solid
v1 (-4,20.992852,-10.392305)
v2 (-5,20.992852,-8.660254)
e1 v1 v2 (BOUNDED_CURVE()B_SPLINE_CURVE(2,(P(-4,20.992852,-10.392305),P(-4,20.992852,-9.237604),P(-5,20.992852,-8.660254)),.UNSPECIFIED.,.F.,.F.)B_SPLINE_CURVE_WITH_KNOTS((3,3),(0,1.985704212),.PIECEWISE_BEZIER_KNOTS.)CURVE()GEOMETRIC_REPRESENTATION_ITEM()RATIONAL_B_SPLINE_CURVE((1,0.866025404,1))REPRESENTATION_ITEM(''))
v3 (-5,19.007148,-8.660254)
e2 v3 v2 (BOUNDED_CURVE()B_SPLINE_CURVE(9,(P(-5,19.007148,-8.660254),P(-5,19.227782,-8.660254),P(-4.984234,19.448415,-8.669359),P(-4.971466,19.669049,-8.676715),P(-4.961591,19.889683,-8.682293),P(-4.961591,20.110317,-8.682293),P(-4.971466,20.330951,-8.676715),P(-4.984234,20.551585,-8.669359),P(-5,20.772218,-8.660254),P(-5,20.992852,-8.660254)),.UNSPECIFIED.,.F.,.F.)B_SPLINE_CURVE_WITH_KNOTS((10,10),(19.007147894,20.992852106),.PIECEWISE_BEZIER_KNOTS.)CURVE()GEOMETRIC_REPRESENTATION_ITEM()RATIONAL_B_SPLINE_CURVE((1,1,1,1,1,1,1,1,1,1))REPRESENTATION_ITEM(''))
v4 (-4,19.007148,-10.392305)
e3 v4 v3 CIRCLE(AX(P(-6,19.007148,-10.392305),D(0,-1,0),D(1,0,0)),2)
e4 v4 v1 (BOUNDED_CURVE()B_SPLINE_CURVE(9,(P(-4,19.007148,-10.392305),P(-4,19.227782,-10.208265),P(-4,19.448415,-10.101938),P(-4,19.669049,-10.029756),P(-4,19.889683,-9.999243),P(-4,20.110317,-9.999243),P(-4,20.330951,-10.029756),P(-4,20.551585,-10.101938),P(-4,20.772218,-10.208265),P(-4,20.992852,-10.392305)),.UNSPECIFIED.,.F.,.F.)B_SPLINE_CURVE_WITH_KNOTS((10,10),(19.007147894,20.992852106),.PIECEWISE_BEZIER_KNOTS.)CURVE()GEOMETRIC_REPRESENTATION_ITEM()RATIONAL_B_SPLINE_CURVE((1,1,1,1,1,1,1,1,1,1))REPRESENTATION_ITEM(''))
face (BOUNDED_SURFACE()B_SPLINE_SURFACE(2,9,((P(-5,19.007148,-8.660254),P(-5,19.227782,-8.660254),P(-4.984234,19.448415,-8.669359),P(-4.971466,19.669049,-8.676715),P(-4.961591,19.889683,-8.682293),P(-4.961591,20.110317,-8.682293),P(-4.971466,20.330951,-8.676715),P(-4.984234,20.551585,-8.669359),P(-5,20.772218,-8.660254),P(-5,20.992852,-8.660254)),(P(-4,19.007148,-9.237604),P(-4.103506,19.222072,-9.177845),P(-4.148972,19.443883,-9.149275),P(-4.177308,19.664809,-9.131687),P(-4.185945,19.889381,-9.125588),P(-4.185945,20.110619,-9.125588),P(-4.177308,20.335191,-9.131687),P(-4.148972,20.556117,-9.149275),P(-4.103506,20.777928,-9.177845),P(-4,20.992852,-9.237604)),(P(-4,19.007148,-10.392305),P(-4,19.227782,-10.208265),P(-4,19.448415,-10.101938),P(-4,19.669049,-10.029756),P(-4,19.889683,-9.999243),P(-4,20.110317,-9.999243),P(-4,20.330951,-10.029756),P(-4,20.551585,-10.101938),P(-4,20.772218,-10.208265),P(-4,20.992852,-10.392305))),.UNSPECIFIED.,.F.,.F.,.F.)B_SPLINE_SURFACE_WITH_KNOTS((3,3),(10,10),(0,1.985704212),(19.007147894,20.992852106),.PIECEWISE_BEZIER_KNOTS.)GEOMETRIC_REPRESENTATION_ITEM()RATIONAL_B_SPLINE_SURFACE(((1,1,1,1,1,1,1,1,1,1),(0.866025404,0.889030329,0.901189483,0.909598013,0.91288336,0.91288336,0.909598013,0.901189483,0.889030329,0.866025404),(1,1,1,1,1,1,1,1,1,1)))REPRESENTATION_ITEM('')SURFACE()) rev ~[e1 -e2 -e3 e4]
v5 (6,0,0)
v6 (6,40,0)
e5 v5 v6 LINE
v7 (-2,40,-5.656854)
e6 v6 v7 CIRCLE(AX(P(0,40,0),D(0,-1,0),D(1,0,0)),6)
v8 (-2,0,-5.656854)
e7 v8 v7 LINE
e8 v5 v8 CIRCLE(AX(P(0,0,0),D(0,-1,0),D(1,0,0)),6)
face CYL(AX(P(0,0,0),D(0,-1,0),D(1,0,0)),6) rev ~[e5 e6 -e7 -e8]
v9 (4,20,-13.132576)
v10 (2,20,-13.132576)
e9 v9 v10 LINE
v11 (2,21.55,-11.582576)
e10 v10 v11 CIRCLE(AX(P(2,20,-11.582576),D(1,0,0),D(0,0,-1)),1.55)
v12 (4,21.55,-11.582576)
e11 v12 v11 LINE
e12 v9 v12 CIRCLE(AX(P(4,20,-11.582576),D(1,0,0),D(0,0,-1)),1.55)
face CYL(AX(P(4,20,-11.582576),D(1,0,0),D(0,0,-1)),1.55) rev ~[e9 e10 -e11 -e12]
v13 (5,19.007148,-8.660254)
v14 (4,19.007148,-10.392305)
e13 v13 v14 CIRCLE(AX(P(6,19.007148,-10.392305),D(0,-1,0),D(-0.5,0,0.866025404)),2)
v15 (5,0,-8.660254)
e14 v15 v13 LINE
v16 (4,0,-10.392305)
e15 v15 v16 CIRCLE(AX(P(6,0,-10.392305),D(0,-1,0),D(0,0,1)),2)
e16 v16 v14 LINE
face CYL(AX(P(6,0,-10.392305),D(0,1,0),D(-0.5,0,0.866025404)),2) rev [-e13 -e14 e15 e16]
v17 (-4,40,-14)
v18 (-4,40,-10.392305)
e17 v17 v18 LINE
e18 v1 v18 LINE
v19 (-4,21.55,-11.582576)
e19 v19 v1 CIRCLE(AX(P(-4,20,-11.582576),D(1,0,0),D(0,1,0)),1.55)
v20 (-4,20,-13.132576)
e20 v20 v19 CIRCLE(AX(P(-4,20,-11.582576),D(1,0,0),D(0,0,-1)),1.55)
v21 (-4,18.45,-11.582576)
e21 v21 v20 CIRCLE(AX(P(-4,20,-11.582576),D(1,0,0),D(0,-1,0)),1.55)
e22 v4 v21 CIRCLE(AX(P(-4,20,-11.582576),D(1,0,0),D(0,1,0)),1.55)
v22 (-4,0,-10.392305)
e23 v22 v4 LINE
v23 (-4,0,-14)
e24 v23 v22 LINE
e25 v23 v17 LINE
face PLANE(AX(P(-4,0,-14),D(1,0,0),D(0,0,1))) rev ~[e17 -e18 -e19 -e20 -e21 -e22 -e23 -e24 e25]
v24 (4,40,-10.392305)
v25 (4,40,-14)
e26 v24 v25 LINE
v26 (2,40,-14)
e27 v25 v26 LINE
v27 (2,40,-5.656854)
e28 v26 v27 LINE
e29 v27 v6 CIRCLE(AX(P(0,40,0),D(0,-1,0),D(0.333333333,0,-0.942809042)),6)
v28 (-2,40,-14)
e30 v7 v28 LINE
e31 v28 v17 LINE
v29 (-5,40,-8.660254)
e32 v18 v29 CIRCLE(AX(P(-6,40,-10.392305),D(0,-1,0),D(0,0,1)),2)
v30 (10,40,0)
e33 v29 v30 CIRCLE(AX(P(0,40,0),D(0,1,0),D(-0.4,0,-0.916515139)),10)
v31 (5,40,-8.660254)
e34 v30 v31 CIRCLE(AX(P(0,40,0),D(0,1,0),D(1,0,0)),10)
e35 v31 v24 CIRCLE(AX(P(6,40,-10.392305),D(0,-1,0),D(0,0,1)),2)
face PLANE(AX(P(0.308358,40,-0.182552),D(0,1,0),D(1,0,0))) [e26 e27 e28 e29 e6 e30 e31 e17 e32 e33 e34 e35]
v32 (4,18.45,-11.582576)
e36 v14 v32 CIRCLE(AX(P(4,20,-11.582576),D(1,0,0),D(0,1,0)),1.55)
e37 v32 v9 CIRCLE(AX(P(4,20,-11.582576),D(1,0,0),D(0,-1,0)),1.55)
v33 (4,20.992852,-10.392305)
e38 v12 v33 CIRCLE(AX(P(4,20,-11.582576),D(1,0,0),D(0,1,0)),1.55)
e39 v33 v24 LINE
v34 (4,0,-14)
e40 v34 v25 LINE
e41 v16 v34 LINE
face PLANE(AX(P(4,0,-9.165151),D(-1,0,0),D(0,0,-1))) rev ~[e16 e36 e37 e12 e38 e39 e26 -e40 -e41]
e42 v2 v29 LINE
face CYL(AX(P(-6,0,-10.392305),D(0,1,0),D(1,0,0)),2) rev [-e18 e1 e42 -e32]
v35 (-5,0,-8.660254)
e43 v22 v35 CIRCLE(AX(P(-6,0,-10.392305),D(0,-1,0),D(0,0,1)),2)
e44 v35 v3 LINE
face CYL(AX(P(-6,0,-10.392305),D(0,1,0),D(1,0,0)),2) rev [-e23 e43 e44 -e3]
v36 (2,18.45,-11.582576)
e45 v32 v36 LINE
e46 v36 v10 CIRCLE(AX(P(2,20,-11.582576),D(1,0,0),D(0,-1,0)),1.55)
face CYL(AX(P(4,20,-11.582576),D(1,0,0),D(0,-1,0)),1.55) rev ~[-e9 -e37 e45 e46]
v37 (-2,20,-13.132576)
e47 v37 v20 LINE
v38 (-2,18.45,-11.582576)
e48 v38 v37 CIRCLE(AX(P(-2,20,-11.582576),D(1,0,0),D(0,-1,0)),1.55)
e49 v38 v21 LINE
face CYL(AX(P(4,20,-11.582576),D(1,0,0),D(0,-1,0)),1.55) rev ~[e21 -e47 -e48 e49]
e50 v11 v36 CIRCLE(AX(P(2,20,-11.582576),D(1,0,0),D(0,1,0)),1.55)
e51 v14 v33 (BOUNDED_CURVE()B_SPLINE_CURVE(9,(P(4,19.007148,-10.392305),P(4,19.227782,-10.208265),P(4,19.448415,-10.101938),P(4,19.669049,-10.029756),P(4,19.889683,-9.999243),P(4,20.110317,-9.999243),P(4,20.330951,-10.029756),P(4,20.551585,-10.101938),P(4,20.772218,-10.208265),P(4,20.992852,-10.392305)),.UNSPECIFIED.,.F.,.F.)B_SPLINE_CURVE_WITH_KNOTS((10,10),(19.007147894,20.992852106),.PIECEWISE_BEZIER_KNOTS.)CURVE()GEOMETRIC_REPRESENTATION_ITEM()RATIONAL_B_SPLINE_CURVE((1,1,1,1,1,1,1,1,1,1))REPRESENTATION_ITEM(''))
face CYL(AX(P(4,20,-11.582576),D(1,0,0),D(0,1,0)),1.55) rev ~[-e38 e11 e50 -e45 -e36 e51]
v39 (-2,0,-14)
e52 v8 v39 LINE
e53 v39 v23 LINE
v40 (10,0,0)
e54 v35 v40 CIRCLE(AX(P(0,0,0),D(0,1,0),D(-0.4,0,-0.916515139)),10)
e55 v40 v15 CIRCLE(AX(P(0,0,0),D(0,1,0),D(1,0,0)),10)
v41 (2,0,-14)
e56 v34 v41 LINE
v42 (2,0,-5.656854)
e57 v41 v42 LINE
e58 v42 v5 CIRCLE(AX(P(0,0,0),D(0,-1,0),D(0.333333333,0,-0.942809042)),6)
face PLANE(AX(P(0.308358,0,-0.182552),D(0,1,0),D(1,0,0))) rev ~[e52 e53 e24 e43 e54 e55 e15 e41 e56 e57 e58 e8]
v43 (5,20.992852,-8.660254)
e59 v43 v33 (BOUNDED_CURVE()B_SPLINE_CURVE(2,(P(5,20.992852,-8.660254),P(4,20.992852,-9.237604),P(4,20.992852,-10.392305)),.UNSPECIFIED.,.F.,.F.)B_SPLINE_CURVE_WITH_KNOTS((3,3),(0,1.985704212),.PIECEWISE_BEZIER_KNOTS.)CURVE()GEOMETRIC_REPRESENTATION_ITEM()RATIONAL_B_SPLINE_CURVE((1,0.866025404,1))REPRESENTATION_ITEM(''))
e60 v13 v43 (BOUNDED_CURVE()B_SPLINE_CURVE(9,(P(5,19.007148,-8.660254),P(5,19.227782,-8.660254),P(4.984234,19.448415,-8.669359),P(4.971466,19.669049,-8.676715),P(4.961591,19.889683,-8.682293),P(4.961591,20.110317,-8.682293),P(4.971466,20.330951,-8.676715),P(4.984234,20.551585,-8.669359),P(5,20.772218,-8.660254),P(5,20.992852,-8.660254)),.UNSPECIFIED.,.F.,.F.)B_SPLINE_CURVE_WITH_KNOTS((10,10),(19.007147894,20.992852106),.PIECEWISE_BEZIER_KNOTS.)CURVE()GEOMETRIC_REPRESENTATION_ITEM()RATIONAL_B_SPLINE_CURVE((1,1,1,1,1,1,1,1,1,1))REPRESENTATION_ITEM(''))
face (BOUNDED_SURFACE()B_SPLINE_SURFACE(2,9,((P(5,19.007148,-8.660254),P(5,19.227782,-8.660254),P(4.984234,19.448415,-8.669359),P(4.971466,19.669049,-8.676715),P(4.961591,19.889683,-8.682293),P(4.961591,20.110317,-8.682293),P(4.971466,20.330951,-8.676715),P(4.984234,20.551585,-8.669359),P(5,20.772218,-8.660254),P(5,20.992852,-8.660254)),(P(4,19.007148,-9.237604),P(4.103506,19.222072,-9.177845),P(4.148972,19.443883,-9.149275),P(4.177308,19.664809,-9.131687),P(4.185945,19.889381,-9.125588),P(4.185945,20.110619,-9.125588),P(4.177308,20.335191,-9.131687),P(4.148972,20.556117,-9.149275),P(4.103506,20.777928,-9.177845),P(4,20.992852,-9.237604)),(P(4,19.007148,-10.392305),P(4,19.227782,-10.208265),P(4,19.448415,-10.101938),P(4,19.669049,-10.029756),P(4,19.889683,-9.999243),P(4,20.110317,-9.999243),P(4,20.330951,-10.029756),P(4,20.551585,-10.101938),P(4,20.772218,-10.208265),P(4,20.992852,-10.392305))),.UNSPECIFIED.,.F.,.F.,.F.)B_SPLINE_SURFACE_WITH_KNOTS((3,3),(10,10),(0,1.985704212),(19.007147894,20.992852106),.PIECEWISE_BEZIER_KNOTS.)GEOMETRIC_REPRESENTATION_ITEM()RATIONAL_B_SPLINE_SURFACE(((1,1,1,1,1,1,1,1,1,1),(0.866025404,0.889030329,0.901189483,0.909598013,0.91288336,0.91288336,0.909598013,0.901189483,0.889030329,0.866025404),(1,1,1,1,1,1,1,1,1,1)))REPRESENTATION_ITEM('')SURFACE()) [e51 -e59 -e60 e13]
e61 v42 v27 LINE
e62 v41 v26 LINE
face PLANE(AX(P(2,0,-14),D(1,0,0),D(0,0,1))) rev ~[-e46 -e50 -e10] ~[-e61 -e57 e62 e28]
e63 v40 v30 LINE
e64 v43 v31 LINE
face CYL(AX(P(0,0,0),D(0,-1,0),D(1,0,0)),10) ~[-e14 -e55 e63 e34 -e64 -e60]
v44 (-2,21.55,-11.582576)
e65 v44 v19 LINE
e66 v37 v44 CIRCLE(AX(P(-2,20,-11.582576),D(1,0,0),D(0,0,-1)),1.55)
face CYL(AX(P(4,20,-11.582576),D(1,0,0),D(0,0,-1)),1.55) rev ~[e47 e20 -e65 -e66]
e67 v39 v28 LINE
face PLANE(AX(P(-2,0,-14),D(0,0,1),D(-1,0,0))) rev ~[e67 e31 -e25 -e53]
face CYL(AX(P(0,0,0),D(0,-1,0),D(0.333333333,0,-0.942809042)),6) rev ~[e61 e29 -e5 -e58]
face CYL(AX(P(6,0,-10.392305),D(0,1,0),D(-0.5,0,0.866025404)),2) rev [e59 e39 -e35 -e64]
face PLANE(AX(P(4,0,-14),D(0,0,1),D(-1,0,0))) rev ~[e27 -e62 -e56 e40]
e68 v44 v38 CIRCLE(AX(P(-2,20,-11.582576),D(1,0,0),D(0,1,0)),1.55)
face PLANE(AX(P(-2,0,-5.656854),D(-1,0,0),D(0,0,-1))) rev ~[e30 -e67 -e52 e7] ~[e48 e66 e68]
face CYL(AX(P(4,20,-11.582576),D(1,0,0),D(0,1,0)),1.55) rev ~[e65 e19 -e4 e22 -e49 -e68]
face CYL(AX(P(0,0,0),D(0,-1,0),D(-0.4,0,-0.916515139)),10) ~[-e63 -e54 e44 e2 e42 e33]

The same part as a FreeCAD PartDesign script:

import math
import FreeCAD as App
import Part
import Sketcher

V = App.Vector
Q = App.Units.Quantity


def edges_at(feature, points):
    """Names of the edges that pass closest to the given points."""
    edges = feature.Shape.Edges
    near = lambda p: min(range(len(edges)), key=lambda i: edges[i].distToShape(Part.Vertex(*p))[0])
    return sorted({f"Edge{near(p) + 1}" for p in points})

doc = App.newDocument("Part")
body = doc.addObject("PartDesign::Body", "Body")

# Sketch on XZ plane
sketch1 = doc.addObject("Sketcher::SketchObject", "Sketch")
body.addObject(sketch1)
sketch1.AttachmentSupport = (doc.XZ_Plane, [""])
sketch1.MapMode = "FlatFace"
sketch1.addGeometry([
    Part.LineSegment(V(-2, -5.7, 0), V(-2, -14, 0)),  # 0
    Part.LineSegment(V(-2, -14, 0), V(-4, -14, 0)),  # 1
    Part.LineSegment(V(-4, -14, 0), V(-4, -9.2, 0)),  # 2
    Part.ArcOfCircle(Part.Circle(V(0, 0, 0), V(0, 0, 1), 10), math.radians(0), math.radians(246)),  # 3
    Part.ArcOfCircle(Part.Circle(V(0, 0, 0), V(0, 0, 1), 10), math.radians(-66), math.radians(0)),  # 4
    Part.LineSegment(V(4, -9.2, 0), V(4, -14, 0)),  # 5
    Part.LineSegment(V(4, -14, 0), V(2, -14, 0)),  # 6
    Part.LineSegment(V(2, -14, 0), V(2, -5.7, 0)),  # 7
    Part.ArcOfCircle(Part.Circle(V(0, 0, 0), V(0, 0, 1), 6), math.radians(-71), math.radians(0)),  # 8
    Part.ArcOfCircle(Part.Circle(V(0, 0, 0), V(0, 0, 1), 6), math.radians(0), math.radians(251)),  # 9
], False)
sketch1.addConstraint([
    Sketcher.Constraint("Coincident", 0, 2, 1, 1),
    Sketcher.Constraint("Coincident", 1, 2, 2, 1),
    Sketcher.Constraint("Coincident", 2, 2, 3, 2),
    Sketcher.Constraint("Tangent", 3, 1, 4, 2),
    Sketcher.Constraint("Coincident", 4, 1, 5, 1),
    Sketcher.Constraint("Coincident", 5, 2, 6, 1),
    Sketcher.Constraint("Coincident", 6, 2, 7, 1),
    Sketcher.Constraint("Coincident", 7, 2, 8, 1),
    Sketcher.Constraint("Tangent", 8, 2, 9, 1),
    Sketcher.Constraint("Coincident", 9, 2, 0, 1),
    Sketcher.Constraint("Vertical", 0),
    Sketcher.Constraint("Horizontal", 1),
    Sketcher.Constraint("Vertical", 2),
    Sketcher.Constraint("Vertical", 5),
    Sketcher.Constraint("Horizontal", 6),
    Sketcher.Constraint("Vertical", 7),
    Sketcher.Constraint("Coincident", 3, 3, -1, 1),
    Sketcher.Constraint("Coincident", 8, 3, -1, 1),
    Sketcher.Constraint("Equal", 3, 4),
    Sketcher.Constraint("Equal", 8, 9),
    Sketcher.Constraint("Symmetric", 1, 2, 5, 2, -2),
    Sketcher.Constraint("PointOnObject", 3, 1, -1),
    Sketcher.Constraint("PointOnObject", 8, 2, -1),
    Sketcher.Constraint("Horizontal", 7, 2, 9, 2),
    Sketcher.Constraint("Radius", 3, Q("10 mm")),
    Sketcher.Constraint("Radius", 8, Q("6 mm")),
    Sketcher.Constraint("DistanceX", 1, 2, 1, 1, Q("2 mm")),
    Sketcher.Constraint("DistanceX", 0, 2, -1, 1, Q("2 mm")),
    Sketcher.Constraint("DistanceY", 0, 2, -1, 1, Q("14 mm")),
])
pad1 = doc.addObject("PartDesign::Pad", "Pad")
body.addObject(pad1)
pad1.Profile = sketch1
pad1.Length = 40
pad1.Reversed = True

# Sketch on YZ plane
sketch2 = doc.addObject("Sketcher::SketchObject", "Sketch001")
body.addObject(sketch2)
sketch2.AttachmentSupport = (doc.YZ_Plane, [""])
sketch2.MapMode = "FlatFace"
sketch2.AttachmentOffset = App.Placement(V(0, 0, 4), App.Rotation())
sketch2.addGeometry([
    Part.ArcOfCircle(Part.Circle(V(20, -11.6, 0), V(0, 0, 1), 1.5), math.radians(-90), math.radians(0)),
    Part.ArcOfCircle(Part.Circle(V(20, -11.6, 0), V(0, 0, 1), 1.6), math.radians(0), math.radians(180)),
    Part.ArcOfCircle(Part.Circle(V(20, -11.6, 0), V(0, 0, 1), 1.5), math.radians(180), math.radians(270)),
], False)
sketch2.addConstraint([
    Sketcher.Constraint("Tangent", 0, 2, 1, 1),
    Sketcher.Constraint("Tangent", 1, 2, 2, 1),
    Sketcher.Constraint("Tangent", 2, 2, 0, 1),
    Sketcher.Constraint("Horizontal", 2, 3, 0, 2),
    Sketcher.Constraint("Horizontal", 0, 2, 1, 2),
    Sketcher.Constraint("Vertical", 1, 3, 2, 2),
    Sketcher.Constraint("Radius", 0, Q("1.55 mm")),
    Sketcher.Constraint("DistanceX", -1, 1, 0, 3, Q("20 mm")),
    Sketcher.Constraint("DistanceY", 0, 3, -1, 1, Q("11.582576 mm")),
])
pocket1 = doc.addObject("PartDesign::Pocket", "Pocket")
body.addObject(pocket1)
pocket1.Profile = sketch2
pocket1.Type = "ThroughAll"
doc.recompute()

fillet = doc.addObject("PartDesign::Fillet", "Fillet")
body.addObject(fillet)
fillet.Base = (pocket1, edges_at(pocket1, [(4, 20, -9.165), (-4, 20, -9.165)]))
fillet.Radius = 2

doc.recompute()
